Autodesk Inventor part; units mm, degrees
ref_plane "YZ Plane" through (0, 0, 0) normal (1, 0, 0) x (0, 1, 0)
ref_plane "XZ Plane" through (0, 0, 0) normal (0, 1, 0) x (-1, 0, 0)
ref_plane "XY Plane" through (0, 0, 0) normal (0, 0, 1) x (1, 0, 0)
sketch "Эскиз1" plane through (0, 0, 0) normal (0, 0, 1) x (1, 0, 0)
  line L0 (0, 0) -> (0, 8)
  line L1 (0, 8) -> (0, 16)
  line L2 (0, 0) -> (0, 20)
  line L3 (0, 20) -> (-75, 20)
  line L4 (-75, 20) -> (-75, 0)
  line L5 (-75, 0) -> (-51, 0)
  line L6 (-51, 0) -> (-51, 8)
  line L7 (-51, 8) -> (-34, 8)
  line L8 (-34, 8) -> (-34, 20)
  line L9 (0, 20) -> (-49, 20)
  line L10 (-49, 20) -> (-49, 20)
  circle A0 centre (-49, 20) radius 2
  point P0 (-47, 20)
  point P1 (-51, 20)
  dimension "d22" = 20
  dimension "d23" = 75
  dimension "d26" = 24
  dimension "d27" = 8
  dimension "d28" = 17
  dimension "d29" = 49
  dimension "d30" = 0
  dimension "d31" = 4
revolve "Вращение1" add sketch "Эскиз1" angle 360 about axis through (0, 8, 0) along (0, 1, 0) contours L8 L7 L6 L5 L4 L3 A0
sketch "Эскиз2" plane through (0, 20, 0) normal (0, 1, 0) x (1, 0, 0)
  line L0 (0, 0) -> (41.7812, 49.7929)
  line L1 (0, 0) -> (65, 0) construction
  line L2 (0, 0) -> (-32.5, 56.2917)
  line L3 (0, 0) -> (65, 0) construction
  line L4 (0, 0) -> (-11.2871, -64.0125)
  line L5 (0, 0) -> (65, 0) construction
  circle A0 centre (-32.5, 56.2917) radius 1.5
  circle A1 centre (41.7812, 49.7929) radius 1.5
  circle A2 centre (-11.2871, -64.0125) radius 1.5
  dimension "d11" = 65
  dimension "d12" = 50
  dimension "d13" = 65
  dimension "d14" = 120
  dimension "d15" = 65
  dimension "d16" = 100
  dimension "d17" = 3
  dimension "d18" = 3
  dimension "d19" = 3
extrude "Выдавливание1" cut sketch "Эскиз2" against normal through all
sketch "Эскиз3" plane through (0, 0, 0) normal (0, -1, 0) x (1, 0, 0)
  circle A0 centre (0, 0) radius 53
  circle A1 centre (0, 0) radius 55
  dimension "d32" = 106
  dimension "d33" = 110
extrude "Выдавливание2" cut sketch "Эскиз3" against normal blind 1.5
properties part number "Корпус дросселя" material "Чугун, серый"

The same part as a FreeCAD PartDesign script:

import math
import FreeCAD as App
import Part
import Sketcher
from FreeCAD import Vector
Q = App.Units.Quantity

doc = App.newDocument("Part")
params = doc.addObject("Spreadsheet::Sheet", "Params")
for row, (alias, value) in enumerate([
    ("sketch1_radius", "2 mm"),
    ("sketch1_width", "24 mm"),
    ("sketch1_width2", "17 mm"),
    ("sketch1_height", "20 mm"),
    ("sketch1_height2", "8 mm"),
    ("revolution_angle", "360 deg"),
    ("sketch2_diameter", "3 mm"),
    ("sketch3_diameter", "110 mm"),
    ("sketch3_diameter2", "106 mm"),
    ("pocket2_length", "1.5 mm"),
], start=1):
    params.set(f"A{row}", alias)
    params.set(f"B{row}", "=" + value)
    params.setAlias(f"B{row}", alias)

body = doc.addObject("PartDesign::Body", "Body")

sketch1 = body.newObject("Sketcher::SketchObject", "Sketch")
sketch1.AttachmentSupport = (doc.getObject("XY_Plane"), [""])
sketch1.MapMode = "FlatFace"
sketch1.addGeometry([
    Part.LineSegment(Vector(-34, 8, 0), Vector(-34, 20, 0)),
    Part.LineSegment(Vector(-34, 20, 0), Vector(-47, 20, 0)),
    Part.ArcOfCircle(Part.Circle(Vector(-49, 20, 0), Vector(0, 0, 1), 2), math.radians(180), math.radians(360)),
    Part.LineSegment(Vector(-51, 20, 0), Vector(-75, 20, 0)),
    Part.LineSegment(Vector(-75, 20, 0), Vector(-75, 0, 0)),
    Part.LineSegment(Vector(-75, 0, 0), Vector(-51, 0, 0)),
    Part.LineSegment(Vector(-51, 0, 0), Vector(-51, 8, 0)),
    Part.LineSegment(Vector(-51, 8, 0), Vector(-34, 8, 0)),
], False)
sketch1.addConstraint([
    Sketcher.Constraint("Coincident", 0, 2, 1, 1),
    Sketcher.Constraint("Coincident", 1, 2, 2, 2),
    Sketcher.Constraint("Coincident", 2, 1, 3, 1),
    Sketcher.Constraint("Coincident", 3, 2, 4, 1),
    Sketcher.Constraint("Coincident", 4, 2, 5, 1),
    Sketcher.Constraint("Coincident", 5, 2, 6, 1),
    Sketcher.Constraint("Coincident", 6, 2, 7, 1),
    Sketcher.Constraint("Coincident", 7, 2, 0, 1),
    Sketcher.Constraint("Vertical", 0),
    Sketcher.Constraint("Horizontal", 1),
    Sketcher.Constraint("Horizontal", 3),
    Sketcher.Constraint("Vertical", 4),
    Sketcher.Constraint("Horizontal", 5),
    Sketcher.Constraint("Vertical", 6),
    Sketcher.Constraint("Horizontal", 7),
    Sketcher.Constraint("PointOnObject", 4, 2, -1),
    Sketcher.Constraint("Horizontal", 2, 3, 0, 2),
    Sketcher.Constraint("Horizontal", 1, 2, 2, 1),
    Sketcher.Constraint("Vertical", 2, 1, 5, 2),
    Sketcher.Constraint("Radius", 2, Q("2 mm")),
    Sketcher.Constraint("DistanceX", 3, 2, 3, 1, Q("24 mm")),
    Sketcher.Constraint("DistanceX", 7, 1, 7, 2, Q("17 mm")),
    Sketcher.Constraint("DistanceY", 4, 2, 4, 1, Q("20 mm")),
    Sketcher.Constraint("DistanceY", 6, 1, 6, 2, Q("8 mm")),
    Sketcher.Constraint("DistanceX", 2, 3, -1, 1, Q("49 mm")),
])
sketch1.setExpression("Constraints[19]", "Params.sketch1_radius")
sketch1.setExpression("Constraints[20]", "Params.sketch1_width")
sketch1.setExpression("Constraints[21]", "Params.sketch1_width2")
sketch1.setExpression("Constraints[22]", "Params.sketch1_height")
sketch1.setExpression("Constraints[23]", "Params.sketch1_height2")
revolution = body.newObject("PartDesign::Revolution", "Revolution")
revolution.Profile = sketch1
revolution.ReferenceAxis = (sketch1, ["V_Axis"])
revolution.setExpression("Angle", "Params.revolution_angle")

sketch2 = body.newObject("Sketcher::SketchObject", "Sketch001")
sketch2.AttachmentSupport = (doc.getObject("XZ_Plane"), [""])
sketch2.MapMode = "FlatFace"
sketch2.AttachmentOffset = App.Placement(Vector(0, 0, -20), App.Rotation())
sketch2.addGeometry([
    Part.Circle(Vector(41.8, -49.8, 0), Vector(0, 0, 1), 1.5),
    Part.Circle(Vector(-32.5, -56.3, 0), Vector(0, 0, 1), 1.5),
    Part.Circle(Vector(-11.3, 64, 0), Vector(0, 0, 1), 1.5),
], False)
sketch2.addConstraint([
    Sketcher.Constraint("Equal", 0, 1),
    Sketcher.Constraint("Equal", 1, 2),
    Sketcher.Constraint("Diameter", 0, Q("3 mm")),
    Sketcher.Constraint("DistanceX", 1, 3, -1, 1, Q("32.5 mm")),
    Sketcher.Constraint("DistanceY", 0, 3, -1, 1, Q("49.793 mm")),
    Sketcher.Constraint("DistanceX", 2, 3, -1, 1, Q("11.287 mm")),
    Sketcher.Constraint("DistanceX", -1, 1, 0, 3, Q("41.7812 mm")),
    Sketcher.Constraint("DistanceY", 1, 3, -1, 1, Q("56.2917 mm")),
    Sketcher.Constraint("DistanceY", -1, 1, 2, 3, Q("64.0125 mm")),
])
sketch2.setExpression("Constraints[2]", "Params.sketch2_diameter")
pocket1 = body.newObject("PartDesign::Pocket", "Pocket")
pocket1.Profile = sketch2
pocket1.Type = "ThroughAll"
pocket1.Reversed = True

sketch3 = body.newObject("Sketcher::SketchObject", "Sketch002")
sketch3.AttachmentSupport = (doc.getObject("XZ_Plane"), [""])
sketch3.MapMode = "FlatFace"
sketch3.addGeometry([
    Part.Circle(Vector(0, 0, 0), Vector(0, 0, 1), 55),
    Part.Circle(Vector(0, 0, 0), Vector(0, 0, 1), 53),
], False)
sketch3.addConstraint([
    Sketcher.Constraint("Coincident", 0, 3, -1, 1),
    Sketcher.Constraint("Coincident", 1, 3, -1, 1),
    Sketcher.Constraint("Diameter", 0, Q("110 mm")),
    Sketcher.Constraint("Diameter", 1, Q("106 mm")),
])
sketch3.setExpression("Constraints[2]", "Params.sketch3_diameter")
sketch3.setExpression("Constraints[3]", "Params.sketch3_diameter2")
pocket2 = body.newObject("PartDesign::Pocket", "Pocket001")
pocket2.Profile = sketch3
pocket2.setExpression("Length", "Params.pocket2_length")

doc.recompute()
